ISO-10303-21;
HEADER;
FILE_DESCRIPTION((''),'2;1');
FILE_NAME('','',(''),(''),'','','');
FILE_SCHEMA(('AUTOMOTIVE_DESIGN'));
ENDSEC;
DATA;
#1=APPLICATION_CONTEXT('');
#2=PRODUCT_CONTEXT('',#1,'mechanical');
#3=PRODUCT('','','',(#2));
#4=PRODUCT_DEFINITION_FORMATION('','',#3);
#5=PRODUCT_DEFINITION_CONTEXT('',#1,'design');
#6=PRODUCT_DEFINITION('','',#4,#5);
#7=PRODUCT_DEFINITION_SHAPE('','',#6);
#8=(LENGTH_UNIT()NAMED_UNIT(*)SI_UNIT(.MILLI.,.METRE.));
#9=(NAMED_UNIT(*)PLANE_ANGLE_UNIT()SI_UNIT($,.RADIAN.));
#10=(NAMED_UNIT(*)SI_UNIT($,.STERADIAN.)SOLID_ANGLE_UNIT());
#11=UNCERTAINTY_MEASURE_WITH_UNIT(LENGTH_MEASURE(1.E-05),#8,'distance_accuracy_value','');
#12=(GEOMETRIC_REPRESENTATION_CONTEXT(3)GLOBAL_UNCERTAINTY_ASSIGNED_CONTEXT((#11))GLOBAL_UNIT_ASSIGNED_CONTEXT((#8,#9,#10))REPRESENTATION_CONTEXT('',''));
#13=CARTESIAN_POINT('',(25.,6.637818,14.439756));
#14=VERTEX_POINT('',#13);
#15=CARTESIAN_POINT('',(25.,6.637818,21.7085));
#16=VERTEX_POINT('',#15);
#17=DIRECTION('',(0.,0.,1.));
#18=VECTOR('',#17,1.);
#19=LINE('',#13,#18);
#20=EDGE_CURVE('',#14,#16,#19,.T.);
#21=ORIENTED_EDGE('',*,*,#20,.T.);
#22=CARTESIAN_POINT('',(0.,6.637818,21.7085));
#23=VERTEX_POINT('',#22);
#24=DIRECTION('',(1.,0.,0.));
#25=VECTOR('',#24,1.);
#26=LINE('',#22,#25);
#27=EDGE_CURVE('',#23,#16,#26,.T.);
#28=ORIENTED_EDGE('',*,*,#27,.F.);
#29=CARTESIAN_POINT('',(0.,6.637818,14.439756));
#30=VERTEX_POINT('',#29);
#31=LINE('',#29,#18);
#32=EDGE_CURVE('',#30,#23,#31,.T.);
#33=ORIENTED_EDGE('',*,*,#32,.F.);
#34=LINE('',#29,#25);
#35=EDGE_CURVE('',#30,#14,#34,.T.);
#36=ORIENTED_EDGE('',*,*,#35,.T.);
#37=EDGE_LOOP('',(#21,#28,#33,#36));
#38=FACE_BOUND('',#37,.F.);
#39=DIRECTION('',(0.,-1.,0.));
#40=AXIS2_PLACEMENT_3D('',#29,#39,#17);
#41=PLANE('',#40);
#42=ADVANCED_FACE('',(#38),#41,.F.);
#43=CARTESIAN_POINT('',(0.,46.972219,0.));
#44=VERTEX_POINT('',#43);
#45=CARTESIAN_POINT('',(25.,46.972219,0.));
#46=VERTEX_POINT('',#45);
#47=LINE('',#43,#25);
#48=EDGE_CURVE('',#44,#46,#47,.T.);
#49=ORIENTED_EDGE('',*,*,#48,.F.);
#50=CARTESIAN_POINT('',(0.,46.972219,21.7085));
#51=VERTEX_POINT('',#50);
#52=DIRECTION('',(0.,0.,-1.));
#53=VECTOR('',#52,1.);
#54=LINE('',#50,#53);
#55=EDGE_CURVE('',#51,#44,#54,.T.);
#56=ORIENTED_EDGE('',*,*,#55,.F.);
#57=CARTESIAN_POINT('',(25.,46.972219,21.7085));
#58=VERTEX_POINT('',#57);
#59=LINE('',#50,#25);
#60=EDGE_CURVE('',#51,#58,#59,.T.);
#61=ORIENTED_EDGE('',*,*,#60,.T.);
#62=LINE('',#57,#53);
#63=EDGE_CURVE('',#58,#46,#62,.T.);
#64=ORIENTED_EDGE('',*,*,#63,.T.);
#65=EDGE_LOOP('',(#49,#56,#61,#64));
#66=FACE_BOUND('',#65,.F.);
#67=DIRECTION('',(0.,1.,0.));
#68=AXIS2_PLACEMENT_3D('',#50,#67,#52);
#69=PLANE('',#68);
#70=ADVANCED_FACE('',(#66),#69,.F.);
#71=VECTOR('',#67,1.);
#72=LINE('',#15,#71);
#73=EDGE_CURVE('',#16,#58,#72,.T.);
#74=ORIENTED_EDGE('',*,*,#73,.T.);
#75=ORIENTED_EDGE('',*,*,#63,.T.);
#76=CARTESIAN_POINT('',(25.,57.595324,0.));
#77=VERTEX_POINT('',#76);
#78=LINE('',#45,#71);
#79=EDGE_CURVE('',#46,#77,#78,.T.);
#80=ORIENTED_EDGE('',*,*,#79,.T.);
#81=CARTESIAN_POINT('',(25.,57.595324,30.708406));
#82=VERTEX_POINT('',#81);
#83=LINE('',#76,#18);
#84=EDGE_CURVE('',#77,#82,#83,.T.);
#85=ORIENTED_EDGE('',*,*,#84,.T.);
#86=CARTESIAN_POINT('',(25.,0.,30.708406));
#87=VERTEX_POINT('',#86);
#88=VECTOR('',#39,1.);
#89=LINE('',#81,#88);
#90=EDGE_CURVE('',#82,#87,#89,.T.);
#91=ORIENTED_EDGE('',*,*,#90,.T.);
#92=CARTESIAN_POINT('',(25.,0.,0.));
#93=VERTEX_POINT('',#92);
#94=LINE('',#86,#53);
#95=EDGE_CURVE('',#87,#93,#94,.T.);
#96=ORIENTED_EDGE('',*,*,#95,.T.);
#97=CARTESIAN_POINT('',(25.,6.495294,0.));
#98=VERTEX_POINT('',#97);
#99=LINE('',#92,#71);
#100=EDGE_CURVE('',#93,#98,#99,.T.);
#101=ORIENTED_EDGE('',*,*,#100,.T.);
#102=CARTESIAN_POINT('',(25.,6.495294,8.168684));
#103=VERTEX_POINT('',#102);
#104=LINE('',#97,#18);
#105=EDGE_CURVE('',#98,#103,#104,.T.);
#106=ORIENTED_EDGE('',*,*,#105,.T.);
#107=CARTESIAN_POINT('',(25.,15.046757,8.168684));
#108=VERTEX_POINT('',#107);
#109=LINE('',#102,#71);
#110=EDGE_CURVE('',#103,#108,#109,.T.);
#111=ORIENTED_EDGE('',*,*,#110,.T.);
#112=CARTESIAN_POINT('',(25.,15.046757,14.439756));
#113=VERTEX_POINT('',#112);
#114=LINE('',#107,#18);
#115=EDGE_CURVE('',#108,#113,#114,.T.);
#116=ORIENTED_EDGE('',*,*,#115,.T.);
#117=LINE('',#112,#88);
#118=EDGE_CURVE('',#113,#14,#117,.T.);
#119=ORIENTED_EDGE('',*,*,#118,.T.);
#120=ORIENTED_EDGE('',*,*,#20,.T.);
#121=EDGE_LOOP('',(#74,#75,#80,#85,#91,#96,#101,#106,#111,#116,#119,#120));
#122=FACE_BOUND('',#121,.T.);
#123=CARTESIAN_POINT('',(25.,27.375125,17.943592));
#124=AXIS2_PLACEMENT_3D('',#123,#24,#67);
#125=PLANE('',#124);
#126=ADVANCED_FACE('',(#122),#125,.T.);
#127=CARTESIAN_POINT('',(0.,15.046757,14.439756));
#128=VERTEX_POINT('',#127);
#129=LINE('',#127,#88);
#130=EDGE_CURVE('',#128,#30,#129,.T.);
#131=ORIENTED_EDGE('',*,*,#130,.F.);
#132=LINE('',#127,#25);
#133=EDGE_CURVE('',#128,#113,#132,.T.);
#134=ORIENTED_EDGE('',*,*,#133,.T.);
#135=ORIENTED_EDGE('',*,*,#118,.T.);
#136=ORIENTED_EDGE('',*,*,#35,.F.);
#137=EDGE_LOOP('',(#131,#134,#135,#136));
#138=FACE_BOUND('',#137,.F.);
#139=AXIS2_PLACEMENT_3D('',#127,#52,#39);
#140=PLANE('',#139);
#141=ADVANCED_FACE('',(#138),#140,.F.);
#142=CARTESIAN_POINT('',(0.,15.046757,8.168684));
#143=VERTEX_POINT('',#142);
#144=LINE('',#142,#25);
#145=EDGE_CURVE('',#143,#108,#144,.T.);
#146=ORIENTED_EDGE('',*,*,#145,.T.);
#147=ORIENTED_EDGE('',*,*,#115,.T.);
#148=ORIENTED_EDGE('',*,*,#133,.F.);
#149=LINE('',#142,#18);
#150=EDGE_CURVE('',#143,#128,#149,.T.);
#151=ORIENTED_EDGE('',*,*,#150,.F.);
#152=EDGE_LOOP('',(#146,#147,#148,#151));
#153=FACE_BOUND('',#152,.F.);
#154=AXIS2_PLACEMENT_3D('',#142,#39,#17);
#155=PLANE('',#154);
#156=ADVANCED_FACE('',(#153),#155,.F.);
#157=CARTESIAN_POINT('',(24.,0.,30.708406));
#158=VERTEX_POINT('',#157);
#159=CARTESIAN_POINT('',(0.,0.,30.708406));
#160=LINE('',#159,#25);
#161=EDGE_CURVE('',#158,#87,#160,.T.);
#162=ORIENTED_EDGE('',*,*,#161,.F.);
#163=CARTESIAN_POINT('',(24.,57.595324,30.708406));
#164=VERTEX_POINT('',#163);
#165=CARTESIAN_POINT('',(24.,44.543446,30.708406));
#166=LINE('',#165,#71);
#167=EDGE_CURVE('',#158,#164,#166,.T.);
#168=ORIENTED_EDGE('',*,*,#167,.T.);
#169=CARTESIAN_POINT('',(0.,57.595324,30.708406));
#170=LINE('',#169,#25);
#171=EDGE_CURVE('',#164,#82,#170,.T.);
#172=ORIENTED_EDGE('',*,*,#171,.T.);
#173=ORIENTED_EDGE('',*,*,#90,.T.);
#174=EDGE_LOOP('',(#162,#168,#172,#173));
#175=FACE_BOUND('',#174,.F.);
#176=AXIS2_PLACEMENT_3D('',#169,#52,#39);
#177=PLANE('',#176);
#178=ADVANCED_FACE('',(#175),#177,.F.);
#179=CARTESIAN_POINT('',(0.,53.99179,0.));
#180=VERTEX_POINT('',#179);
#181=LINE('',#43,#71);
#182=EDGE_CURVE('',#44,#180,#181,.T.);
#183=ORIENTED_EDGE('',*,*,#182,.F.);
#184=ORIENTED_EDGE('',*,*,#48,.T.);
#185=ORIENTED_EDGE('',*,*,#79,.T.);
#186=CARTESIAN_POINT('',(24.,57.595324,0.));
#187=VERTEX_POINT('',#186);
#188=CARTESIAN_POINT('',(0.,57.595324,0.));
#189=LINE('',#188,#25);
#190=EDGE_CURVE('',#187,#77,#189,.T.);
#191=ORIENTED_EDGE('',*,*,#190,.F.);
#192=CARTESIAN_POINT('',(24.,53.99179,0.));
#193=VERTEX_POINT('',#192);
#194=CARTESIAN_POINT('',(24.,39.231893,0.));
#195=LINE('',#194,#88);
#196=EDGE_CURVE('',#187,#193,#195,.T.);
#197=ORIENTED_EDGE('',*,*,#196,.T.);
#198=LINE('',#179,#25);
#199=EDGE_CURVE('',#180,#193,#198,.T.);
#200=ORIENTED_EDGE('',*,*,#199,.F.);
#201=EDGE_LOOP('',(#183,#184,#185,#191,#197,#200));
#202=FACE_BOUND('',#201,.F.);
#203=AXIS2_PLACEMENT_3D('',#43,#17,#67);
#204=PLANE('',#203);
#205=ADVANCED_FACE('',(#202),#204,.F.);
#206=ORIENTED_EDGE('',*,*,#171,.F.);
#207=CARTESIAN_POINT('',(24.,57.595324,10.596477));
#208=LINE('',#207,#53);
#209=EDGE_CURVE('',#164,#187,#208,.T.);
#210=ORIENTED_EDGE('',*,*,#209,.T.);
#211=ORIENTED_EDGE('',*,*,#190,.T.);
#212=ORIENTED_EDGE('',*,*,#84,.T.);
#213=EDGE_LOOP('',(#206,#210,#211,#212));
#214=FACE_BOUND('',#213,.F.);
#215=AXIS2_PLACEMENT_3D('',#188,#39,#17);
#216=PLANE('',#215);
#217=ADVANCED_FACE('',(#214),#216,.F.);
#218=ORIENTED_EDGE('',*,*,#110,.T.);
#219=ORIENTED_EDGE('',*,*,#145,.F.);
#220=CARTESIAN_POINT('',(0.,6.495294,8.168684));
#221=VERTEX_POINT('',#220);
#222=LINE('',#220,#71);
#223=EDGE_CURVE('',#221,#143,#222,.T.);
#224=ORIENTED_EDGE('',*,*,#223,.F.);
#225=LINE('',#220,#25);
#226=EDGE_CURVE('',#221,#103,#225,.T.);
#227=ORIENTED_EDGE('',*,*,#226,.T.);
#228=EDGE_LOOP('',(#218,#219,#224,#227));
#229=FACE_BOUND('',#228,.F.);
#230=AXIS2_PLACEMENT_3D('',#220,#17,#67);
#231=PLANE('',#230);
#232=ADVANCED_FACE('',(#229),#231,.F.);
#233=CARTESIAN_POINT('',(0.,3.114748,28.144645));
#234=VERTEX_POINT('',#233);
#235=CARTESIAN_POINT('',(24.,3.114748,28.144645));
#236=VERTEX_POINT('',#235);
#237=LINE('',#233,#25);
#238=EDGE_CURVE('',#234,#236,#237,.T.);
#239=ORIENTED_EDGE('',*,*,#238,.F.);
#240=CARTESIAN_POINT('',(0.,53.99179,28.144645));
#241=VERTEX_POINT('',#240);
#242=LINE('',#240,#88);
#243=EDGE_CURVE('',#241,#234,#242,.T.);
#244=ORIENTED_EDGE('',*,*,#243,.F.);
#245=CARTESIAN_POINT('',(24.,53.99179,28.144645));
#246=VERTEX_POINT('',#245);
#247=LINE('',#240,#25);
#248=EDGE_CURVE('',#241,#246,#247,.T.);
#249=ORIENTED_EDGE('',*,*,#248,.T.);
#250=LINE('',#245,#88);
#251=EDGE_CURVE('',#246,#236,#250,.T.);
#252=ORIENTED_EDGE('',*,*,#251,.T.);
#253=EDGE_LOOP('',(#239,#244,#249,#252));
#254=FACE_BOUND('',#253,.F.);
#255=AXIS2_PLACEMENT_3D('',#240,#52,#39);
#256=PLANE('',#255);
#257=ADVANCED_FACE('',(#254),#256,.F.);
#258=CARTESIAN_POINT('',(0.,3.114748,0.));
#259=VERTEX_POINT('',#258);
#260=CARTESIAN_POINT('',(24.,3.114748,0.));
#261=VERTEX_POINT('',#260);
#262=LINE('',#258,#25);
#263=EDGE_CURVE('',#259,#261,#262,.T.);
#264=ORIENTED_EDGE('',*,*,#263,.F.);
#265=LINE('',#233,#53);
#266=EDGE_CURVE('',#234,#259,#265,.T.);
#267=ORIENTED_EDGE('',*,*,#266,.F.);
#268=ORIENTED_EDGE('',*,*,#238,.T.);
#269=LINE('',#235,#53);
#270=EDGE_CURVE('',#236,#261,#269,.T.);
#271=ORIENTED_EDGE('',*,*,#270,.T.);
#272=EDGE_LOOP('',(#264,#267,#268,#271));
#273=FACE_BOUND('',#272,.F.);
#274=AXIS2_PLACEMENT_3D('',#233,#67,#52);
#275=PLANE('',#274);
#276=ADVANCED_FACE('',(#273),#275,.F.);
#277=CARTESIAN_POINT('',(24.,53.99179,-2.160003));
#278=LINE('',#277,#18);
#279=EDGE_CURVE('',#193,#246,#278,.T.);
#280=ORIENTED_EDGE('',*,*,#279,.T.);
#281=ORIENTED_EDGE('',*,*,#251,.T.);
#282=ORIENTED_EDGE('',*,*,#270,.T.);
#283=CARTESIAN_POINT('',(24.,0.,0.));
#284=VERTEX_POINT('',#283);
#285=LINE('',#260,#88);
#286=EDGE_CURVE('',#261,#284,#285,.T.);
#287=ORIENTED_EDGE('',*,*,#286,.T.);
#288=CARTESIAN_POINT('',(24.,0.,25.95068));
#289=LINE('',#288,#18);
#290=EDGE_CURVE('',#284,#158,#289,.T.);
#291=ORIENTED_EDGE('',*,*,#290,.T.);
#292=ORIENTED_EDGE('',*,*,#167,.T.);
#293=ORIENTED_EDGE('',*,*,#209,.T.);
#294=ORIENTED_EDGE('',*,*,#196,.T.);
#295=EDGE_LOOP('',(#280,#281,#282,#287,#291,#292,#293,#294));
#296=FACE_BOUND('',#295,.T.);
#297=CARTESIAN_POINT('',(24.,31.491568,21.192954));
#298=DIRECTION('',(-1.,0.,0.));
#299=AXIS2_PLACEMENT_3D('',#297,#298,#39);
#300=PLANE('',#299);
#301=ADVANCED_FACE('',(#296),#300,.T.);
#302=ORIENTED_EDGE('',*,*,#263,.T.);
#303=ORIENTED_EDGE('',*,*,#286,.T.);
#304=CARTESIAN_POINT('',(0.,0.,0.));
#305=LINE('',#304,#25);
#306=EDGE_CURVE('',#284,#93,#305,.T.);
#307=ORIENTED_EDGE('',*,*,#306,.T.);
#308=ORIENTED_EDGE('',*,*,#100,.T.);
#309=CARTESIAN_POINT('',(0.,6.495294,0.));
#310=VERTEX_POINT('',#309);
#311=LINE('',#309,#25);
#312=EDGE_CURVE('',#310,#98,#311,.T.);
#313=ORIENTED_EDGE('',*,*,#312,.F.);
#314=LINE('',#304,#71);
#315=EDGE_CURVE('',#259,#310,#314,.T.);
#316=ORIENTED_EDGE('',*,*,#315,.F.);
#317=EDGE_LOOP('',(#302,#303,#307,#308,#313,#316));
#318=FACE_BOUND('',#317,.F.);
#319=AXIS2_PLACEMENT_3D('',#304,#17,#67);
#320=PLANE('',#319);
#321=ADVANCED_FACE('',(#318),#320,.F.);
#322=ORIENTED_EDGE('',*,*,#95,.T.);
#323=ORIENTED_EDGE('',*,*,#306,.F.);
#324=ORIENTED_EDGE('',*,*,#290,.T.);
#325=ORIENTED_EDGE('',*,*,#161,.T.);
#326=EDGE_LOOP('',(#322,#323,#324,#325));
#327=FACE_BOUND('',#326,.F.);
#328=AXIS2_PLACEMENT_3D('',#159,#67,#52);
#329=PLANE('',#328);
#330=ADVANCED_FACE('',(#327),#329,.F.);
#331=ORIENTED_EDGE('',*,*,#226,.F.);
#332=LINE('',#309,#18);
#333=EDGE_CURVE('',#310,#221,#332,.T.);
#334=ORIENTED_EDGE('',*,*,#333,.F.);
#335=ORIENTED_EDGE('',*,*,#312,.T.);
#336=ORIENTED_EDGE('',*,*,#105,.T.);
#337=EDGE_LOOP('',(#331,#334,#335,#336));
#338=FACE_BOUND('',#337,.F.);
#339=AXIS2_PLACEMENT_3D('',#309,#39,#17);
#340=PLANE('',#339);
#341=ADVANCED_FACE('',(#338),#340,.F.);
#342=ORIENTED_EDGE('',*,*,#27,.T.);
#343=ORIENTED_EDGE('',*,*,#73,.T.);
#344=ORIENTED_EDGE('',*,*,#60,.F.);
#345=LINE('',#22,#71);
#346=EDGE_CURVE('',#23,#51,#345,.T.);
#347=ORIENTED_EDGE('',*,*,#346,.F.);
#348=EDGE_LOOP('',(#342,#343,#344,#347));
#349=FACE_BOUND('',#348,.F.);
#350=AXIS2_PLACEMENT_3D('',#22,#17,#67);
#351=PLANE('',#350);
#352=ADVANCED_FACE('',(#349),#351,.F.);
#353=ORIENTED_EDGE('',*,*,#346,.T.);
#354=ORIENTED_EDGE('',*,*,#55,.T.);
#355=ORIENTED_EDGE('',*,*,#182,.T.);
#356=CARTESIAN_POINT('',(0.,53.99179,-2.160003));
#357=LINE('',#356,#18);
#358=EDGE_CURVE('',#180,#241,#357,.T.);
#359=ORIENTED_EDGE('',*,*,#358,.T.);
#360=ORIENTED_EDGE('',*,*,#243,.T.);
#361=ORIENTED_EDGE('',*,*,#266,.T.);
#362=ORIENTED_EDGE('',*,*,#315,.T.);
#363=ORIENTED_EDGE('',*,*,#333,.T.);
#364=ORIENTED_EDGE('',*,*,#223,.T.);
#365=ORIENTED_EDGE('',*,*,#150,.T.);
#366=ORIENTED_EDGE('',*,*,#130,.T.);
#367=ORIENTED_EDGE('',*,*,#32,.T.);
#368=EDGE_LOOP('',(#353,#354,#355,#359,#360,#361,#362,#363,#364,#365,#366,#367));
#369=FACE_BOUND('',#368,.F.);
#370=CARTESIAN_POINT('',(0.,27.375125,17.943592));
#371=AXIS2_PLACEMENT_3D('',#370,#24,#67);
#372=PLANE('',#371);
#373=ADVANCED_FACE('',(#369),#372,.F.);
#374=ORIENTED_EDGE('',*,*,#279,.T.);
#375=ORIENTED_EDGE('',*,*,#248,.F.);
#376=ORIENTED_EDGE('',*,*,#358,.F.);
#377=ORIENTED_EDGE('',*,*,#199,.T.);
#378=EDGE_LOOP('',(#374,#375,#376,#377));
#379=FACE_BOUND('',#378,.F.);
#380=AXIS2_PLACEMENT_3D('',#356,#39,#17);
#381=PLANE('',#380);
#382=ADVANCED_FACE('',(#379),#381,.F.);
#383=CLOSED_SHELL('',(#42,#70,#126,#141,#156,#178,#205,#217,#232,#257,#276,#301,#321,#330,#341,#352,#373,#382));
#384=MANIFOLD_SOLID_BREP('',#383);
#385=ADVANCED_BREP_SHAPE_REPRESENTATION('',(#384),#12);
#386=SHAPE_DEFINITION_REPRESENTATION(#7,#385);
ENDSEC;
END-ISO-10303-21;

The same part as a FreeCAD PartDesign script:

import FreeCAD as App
import Part
import Sketcher

V = App.Vector
Q = App.Units.Quantity


def add_polygon(sketch, points):
    """Adds a closed chain of lines whose ends are joined by coincident constraints."""
    first, n = sketch.GeometryCount, len(points)
    for a, b in zip(points, points[1:] + points[:1]):
        sketch.addGeometry(Part.LineSegment(App.Vector(*a, 0), App.Vector(*b, 0)), False)
    for i in range(n):
        sketch.addConstraint(Sketcher.Constraint("Coincident", first + i, 2, first + (i + 1) % n, 1))

doc = App.newDocument("Part")
body = doc.addObject("PartDesign::Body", "Body")

# Sketch on YZ plane
sketch1 = doc.addObject("Sketcher::SketchObject", "Sketch")
body.addObject(sketch1)
sketch1.AttachmentSupport = (doc.YZ_Plane, [""])
sketch1.MapMode = "FlatFace"
add_polygon(sketch1, [(0, 31), (0, 0), (6, 0), (6, 8), (15, 8), (15, 14), (7, 14), (7, 22), (47, 22), (47, 0), (58, 0), (58, 31)])  # lines 0-11
sketch1.addConstraint(Sketcher.Constraint("Vertical", 0))
sketch1.addConstraint(Sketcher.Constraint("Horizontal", 1))
sketch1.addConstraint(Sketcher.Constraint("Vertical", 2))
sketch1.addConstraint(Sketcher.Constraint("Horizontal", 3))
sketch1.addConstraint(Sketcher.Constraint("Vertical", 4))
sketch1.addConstraint(Sketcher.Constraint("Horizontal", 5))
sketch1.addConstraint(Sketcher.Constraint("Vertical", 6))
sketch1.addConstraint(Sketcher.Constraint("Horizontal", 7))
sketch1.addConstraint(Sketcher.Constraint("Vertical", 8))
sketch1.addConstraint(Sketcher.Constraint("Horizontal", 9))
sketch1.addConstraint(Sketcher.Constraint("Vertical", 10))
sketch1.addConstraint(Sketcher.Constraint("Horizontal", 11))
sketch1.addConstraint(Sketcher.Constraint("Coincident", 0, 2, -1, 1))
sketch1.addConstraint(Sketcher.Constraint("PointOnObject", 8, 2, -1))
sketch1.addConstraint(Sketcher.Constraint("DistanceX", 7, 1, 7, 2, Q("40.334401 mm")))
sketch1.addConstraint(Sketcher.Constraint("DistanceY", 8, 2, 8, 1, Q("21.7085 mm")))
sketch1.addConstraint(Sketcher.Constraint("DistanceX", 5, 2, 5, 1, Q("8.408939 mm")))
sketch1.addConstraint(Sketcher.Constraint("DistanceY", 4, 1, 4, 2, Q("6.271072 mm")))
sketch1.addConstraint(Sketcher.Constraint("DistanceX", 1, 1, 1, 2, Q("6.495294 mm")))
sketch1.addConstraint(Sketcher.Constraint("DistanceX", 3, 1, 3, 2, Q("8.551463 mm")))
sketch1.addConstraint(Sketcher.Constraint("DistanceX", 9, 1, 9, 2, Q("10.623105 mm")))
sketch1.addConstraint(Sketcher.Constraint("DistanceY", 0, 2, 0, 1, Q("30.708406 mm")))
sketch1.addConstraint(Sketcher.Constraint("DistanceY", 2, 1, 2, 2, Q("8.168684 mm")))
pad1 = doc.addObject("PartDesign::Pad", "Pad")
body.addObject(pad1)
pad1.Profile = sketch1
pad1.Length = 25

# Sketch on YZ plane
sketch2 = doc.addObject("Sketcher::SketchObject", "Sketch001")
body.addObject(sketch2)
sketch2.AttachmentSupport = (doc.YZ_Plane, [""])
sketch2.MapMode = "FlatFace"
add_polygon(sketch2, [(54, -2), (54, 28), (3, 28), (3, 0), (-3, 0), (-3, 33), (66, 33), (66, -2)])  # lines 0-7
sketch2.addConstraint(Sketcher.Constraint("Vertical", 0))
sketch2.addConstraint(Sketcher.Constraint("Horizontal", 1))
sketch2.addConstraint(Sketcher.Constraint("Vertical", 2))
sketch2.addConstraint(Sketcher.Constraint("Horizontal", 3))
sketch2.addConstraint(Sketcher.Constraint("Vertical", 4))
sketch2.addConstraint(Sketcher.Constraint("Horizontal", 5))
sketch2.addConstraint(Sketcher.Constraint("Vertical", 6))
sketch2.addConstraint(Sketcher.Constraint("Horizontal", 7))
sketch2.addConstraint(Sketcher.Constraint("PointOnObject", 2, 2, -1))
sketch2.addConstraint(Sketcher.Constraint("DistanceX", 3, 2, 3, 1, Q("5.681848 mm")))
sketch2.addConstraint(Sketcher.Constraint("DistanceY", 0, 1, 0, 2, Q("30.304648 mm")))
sketch2.addConstraint(Sketcher.Constraint("DistanceY", 6, 2, 6, 1, Q("35.634559 mm")))
sketch2.addConstraint(Sketcher.Constraint("DistanceX", 3, 2, -1, 1, Q("2.5671 mm")))
sketch2.addConstraint(Sketcher.Constraint("DistanceX", 1, 2, 1, 1, Q("50.877042 mm")))
sketch2.addConstraint(Sketcher.Constraint("DistanceX", 5, 1, 5, 2, Q("68.532317 mm")))
sketch2.addConstraint(Sketcher.Constraint("DistanceY", 2, 2, 2, 1, Q("28.144645 mm")))
pocket1 = doc.addObject("PartDesign::Pocket", "Pocket")
body.addObject(pocket1)
pocket1.Profile = sketch2
pocket1.Length = 24
pocket1.Reversed = True

doc.recompute()
